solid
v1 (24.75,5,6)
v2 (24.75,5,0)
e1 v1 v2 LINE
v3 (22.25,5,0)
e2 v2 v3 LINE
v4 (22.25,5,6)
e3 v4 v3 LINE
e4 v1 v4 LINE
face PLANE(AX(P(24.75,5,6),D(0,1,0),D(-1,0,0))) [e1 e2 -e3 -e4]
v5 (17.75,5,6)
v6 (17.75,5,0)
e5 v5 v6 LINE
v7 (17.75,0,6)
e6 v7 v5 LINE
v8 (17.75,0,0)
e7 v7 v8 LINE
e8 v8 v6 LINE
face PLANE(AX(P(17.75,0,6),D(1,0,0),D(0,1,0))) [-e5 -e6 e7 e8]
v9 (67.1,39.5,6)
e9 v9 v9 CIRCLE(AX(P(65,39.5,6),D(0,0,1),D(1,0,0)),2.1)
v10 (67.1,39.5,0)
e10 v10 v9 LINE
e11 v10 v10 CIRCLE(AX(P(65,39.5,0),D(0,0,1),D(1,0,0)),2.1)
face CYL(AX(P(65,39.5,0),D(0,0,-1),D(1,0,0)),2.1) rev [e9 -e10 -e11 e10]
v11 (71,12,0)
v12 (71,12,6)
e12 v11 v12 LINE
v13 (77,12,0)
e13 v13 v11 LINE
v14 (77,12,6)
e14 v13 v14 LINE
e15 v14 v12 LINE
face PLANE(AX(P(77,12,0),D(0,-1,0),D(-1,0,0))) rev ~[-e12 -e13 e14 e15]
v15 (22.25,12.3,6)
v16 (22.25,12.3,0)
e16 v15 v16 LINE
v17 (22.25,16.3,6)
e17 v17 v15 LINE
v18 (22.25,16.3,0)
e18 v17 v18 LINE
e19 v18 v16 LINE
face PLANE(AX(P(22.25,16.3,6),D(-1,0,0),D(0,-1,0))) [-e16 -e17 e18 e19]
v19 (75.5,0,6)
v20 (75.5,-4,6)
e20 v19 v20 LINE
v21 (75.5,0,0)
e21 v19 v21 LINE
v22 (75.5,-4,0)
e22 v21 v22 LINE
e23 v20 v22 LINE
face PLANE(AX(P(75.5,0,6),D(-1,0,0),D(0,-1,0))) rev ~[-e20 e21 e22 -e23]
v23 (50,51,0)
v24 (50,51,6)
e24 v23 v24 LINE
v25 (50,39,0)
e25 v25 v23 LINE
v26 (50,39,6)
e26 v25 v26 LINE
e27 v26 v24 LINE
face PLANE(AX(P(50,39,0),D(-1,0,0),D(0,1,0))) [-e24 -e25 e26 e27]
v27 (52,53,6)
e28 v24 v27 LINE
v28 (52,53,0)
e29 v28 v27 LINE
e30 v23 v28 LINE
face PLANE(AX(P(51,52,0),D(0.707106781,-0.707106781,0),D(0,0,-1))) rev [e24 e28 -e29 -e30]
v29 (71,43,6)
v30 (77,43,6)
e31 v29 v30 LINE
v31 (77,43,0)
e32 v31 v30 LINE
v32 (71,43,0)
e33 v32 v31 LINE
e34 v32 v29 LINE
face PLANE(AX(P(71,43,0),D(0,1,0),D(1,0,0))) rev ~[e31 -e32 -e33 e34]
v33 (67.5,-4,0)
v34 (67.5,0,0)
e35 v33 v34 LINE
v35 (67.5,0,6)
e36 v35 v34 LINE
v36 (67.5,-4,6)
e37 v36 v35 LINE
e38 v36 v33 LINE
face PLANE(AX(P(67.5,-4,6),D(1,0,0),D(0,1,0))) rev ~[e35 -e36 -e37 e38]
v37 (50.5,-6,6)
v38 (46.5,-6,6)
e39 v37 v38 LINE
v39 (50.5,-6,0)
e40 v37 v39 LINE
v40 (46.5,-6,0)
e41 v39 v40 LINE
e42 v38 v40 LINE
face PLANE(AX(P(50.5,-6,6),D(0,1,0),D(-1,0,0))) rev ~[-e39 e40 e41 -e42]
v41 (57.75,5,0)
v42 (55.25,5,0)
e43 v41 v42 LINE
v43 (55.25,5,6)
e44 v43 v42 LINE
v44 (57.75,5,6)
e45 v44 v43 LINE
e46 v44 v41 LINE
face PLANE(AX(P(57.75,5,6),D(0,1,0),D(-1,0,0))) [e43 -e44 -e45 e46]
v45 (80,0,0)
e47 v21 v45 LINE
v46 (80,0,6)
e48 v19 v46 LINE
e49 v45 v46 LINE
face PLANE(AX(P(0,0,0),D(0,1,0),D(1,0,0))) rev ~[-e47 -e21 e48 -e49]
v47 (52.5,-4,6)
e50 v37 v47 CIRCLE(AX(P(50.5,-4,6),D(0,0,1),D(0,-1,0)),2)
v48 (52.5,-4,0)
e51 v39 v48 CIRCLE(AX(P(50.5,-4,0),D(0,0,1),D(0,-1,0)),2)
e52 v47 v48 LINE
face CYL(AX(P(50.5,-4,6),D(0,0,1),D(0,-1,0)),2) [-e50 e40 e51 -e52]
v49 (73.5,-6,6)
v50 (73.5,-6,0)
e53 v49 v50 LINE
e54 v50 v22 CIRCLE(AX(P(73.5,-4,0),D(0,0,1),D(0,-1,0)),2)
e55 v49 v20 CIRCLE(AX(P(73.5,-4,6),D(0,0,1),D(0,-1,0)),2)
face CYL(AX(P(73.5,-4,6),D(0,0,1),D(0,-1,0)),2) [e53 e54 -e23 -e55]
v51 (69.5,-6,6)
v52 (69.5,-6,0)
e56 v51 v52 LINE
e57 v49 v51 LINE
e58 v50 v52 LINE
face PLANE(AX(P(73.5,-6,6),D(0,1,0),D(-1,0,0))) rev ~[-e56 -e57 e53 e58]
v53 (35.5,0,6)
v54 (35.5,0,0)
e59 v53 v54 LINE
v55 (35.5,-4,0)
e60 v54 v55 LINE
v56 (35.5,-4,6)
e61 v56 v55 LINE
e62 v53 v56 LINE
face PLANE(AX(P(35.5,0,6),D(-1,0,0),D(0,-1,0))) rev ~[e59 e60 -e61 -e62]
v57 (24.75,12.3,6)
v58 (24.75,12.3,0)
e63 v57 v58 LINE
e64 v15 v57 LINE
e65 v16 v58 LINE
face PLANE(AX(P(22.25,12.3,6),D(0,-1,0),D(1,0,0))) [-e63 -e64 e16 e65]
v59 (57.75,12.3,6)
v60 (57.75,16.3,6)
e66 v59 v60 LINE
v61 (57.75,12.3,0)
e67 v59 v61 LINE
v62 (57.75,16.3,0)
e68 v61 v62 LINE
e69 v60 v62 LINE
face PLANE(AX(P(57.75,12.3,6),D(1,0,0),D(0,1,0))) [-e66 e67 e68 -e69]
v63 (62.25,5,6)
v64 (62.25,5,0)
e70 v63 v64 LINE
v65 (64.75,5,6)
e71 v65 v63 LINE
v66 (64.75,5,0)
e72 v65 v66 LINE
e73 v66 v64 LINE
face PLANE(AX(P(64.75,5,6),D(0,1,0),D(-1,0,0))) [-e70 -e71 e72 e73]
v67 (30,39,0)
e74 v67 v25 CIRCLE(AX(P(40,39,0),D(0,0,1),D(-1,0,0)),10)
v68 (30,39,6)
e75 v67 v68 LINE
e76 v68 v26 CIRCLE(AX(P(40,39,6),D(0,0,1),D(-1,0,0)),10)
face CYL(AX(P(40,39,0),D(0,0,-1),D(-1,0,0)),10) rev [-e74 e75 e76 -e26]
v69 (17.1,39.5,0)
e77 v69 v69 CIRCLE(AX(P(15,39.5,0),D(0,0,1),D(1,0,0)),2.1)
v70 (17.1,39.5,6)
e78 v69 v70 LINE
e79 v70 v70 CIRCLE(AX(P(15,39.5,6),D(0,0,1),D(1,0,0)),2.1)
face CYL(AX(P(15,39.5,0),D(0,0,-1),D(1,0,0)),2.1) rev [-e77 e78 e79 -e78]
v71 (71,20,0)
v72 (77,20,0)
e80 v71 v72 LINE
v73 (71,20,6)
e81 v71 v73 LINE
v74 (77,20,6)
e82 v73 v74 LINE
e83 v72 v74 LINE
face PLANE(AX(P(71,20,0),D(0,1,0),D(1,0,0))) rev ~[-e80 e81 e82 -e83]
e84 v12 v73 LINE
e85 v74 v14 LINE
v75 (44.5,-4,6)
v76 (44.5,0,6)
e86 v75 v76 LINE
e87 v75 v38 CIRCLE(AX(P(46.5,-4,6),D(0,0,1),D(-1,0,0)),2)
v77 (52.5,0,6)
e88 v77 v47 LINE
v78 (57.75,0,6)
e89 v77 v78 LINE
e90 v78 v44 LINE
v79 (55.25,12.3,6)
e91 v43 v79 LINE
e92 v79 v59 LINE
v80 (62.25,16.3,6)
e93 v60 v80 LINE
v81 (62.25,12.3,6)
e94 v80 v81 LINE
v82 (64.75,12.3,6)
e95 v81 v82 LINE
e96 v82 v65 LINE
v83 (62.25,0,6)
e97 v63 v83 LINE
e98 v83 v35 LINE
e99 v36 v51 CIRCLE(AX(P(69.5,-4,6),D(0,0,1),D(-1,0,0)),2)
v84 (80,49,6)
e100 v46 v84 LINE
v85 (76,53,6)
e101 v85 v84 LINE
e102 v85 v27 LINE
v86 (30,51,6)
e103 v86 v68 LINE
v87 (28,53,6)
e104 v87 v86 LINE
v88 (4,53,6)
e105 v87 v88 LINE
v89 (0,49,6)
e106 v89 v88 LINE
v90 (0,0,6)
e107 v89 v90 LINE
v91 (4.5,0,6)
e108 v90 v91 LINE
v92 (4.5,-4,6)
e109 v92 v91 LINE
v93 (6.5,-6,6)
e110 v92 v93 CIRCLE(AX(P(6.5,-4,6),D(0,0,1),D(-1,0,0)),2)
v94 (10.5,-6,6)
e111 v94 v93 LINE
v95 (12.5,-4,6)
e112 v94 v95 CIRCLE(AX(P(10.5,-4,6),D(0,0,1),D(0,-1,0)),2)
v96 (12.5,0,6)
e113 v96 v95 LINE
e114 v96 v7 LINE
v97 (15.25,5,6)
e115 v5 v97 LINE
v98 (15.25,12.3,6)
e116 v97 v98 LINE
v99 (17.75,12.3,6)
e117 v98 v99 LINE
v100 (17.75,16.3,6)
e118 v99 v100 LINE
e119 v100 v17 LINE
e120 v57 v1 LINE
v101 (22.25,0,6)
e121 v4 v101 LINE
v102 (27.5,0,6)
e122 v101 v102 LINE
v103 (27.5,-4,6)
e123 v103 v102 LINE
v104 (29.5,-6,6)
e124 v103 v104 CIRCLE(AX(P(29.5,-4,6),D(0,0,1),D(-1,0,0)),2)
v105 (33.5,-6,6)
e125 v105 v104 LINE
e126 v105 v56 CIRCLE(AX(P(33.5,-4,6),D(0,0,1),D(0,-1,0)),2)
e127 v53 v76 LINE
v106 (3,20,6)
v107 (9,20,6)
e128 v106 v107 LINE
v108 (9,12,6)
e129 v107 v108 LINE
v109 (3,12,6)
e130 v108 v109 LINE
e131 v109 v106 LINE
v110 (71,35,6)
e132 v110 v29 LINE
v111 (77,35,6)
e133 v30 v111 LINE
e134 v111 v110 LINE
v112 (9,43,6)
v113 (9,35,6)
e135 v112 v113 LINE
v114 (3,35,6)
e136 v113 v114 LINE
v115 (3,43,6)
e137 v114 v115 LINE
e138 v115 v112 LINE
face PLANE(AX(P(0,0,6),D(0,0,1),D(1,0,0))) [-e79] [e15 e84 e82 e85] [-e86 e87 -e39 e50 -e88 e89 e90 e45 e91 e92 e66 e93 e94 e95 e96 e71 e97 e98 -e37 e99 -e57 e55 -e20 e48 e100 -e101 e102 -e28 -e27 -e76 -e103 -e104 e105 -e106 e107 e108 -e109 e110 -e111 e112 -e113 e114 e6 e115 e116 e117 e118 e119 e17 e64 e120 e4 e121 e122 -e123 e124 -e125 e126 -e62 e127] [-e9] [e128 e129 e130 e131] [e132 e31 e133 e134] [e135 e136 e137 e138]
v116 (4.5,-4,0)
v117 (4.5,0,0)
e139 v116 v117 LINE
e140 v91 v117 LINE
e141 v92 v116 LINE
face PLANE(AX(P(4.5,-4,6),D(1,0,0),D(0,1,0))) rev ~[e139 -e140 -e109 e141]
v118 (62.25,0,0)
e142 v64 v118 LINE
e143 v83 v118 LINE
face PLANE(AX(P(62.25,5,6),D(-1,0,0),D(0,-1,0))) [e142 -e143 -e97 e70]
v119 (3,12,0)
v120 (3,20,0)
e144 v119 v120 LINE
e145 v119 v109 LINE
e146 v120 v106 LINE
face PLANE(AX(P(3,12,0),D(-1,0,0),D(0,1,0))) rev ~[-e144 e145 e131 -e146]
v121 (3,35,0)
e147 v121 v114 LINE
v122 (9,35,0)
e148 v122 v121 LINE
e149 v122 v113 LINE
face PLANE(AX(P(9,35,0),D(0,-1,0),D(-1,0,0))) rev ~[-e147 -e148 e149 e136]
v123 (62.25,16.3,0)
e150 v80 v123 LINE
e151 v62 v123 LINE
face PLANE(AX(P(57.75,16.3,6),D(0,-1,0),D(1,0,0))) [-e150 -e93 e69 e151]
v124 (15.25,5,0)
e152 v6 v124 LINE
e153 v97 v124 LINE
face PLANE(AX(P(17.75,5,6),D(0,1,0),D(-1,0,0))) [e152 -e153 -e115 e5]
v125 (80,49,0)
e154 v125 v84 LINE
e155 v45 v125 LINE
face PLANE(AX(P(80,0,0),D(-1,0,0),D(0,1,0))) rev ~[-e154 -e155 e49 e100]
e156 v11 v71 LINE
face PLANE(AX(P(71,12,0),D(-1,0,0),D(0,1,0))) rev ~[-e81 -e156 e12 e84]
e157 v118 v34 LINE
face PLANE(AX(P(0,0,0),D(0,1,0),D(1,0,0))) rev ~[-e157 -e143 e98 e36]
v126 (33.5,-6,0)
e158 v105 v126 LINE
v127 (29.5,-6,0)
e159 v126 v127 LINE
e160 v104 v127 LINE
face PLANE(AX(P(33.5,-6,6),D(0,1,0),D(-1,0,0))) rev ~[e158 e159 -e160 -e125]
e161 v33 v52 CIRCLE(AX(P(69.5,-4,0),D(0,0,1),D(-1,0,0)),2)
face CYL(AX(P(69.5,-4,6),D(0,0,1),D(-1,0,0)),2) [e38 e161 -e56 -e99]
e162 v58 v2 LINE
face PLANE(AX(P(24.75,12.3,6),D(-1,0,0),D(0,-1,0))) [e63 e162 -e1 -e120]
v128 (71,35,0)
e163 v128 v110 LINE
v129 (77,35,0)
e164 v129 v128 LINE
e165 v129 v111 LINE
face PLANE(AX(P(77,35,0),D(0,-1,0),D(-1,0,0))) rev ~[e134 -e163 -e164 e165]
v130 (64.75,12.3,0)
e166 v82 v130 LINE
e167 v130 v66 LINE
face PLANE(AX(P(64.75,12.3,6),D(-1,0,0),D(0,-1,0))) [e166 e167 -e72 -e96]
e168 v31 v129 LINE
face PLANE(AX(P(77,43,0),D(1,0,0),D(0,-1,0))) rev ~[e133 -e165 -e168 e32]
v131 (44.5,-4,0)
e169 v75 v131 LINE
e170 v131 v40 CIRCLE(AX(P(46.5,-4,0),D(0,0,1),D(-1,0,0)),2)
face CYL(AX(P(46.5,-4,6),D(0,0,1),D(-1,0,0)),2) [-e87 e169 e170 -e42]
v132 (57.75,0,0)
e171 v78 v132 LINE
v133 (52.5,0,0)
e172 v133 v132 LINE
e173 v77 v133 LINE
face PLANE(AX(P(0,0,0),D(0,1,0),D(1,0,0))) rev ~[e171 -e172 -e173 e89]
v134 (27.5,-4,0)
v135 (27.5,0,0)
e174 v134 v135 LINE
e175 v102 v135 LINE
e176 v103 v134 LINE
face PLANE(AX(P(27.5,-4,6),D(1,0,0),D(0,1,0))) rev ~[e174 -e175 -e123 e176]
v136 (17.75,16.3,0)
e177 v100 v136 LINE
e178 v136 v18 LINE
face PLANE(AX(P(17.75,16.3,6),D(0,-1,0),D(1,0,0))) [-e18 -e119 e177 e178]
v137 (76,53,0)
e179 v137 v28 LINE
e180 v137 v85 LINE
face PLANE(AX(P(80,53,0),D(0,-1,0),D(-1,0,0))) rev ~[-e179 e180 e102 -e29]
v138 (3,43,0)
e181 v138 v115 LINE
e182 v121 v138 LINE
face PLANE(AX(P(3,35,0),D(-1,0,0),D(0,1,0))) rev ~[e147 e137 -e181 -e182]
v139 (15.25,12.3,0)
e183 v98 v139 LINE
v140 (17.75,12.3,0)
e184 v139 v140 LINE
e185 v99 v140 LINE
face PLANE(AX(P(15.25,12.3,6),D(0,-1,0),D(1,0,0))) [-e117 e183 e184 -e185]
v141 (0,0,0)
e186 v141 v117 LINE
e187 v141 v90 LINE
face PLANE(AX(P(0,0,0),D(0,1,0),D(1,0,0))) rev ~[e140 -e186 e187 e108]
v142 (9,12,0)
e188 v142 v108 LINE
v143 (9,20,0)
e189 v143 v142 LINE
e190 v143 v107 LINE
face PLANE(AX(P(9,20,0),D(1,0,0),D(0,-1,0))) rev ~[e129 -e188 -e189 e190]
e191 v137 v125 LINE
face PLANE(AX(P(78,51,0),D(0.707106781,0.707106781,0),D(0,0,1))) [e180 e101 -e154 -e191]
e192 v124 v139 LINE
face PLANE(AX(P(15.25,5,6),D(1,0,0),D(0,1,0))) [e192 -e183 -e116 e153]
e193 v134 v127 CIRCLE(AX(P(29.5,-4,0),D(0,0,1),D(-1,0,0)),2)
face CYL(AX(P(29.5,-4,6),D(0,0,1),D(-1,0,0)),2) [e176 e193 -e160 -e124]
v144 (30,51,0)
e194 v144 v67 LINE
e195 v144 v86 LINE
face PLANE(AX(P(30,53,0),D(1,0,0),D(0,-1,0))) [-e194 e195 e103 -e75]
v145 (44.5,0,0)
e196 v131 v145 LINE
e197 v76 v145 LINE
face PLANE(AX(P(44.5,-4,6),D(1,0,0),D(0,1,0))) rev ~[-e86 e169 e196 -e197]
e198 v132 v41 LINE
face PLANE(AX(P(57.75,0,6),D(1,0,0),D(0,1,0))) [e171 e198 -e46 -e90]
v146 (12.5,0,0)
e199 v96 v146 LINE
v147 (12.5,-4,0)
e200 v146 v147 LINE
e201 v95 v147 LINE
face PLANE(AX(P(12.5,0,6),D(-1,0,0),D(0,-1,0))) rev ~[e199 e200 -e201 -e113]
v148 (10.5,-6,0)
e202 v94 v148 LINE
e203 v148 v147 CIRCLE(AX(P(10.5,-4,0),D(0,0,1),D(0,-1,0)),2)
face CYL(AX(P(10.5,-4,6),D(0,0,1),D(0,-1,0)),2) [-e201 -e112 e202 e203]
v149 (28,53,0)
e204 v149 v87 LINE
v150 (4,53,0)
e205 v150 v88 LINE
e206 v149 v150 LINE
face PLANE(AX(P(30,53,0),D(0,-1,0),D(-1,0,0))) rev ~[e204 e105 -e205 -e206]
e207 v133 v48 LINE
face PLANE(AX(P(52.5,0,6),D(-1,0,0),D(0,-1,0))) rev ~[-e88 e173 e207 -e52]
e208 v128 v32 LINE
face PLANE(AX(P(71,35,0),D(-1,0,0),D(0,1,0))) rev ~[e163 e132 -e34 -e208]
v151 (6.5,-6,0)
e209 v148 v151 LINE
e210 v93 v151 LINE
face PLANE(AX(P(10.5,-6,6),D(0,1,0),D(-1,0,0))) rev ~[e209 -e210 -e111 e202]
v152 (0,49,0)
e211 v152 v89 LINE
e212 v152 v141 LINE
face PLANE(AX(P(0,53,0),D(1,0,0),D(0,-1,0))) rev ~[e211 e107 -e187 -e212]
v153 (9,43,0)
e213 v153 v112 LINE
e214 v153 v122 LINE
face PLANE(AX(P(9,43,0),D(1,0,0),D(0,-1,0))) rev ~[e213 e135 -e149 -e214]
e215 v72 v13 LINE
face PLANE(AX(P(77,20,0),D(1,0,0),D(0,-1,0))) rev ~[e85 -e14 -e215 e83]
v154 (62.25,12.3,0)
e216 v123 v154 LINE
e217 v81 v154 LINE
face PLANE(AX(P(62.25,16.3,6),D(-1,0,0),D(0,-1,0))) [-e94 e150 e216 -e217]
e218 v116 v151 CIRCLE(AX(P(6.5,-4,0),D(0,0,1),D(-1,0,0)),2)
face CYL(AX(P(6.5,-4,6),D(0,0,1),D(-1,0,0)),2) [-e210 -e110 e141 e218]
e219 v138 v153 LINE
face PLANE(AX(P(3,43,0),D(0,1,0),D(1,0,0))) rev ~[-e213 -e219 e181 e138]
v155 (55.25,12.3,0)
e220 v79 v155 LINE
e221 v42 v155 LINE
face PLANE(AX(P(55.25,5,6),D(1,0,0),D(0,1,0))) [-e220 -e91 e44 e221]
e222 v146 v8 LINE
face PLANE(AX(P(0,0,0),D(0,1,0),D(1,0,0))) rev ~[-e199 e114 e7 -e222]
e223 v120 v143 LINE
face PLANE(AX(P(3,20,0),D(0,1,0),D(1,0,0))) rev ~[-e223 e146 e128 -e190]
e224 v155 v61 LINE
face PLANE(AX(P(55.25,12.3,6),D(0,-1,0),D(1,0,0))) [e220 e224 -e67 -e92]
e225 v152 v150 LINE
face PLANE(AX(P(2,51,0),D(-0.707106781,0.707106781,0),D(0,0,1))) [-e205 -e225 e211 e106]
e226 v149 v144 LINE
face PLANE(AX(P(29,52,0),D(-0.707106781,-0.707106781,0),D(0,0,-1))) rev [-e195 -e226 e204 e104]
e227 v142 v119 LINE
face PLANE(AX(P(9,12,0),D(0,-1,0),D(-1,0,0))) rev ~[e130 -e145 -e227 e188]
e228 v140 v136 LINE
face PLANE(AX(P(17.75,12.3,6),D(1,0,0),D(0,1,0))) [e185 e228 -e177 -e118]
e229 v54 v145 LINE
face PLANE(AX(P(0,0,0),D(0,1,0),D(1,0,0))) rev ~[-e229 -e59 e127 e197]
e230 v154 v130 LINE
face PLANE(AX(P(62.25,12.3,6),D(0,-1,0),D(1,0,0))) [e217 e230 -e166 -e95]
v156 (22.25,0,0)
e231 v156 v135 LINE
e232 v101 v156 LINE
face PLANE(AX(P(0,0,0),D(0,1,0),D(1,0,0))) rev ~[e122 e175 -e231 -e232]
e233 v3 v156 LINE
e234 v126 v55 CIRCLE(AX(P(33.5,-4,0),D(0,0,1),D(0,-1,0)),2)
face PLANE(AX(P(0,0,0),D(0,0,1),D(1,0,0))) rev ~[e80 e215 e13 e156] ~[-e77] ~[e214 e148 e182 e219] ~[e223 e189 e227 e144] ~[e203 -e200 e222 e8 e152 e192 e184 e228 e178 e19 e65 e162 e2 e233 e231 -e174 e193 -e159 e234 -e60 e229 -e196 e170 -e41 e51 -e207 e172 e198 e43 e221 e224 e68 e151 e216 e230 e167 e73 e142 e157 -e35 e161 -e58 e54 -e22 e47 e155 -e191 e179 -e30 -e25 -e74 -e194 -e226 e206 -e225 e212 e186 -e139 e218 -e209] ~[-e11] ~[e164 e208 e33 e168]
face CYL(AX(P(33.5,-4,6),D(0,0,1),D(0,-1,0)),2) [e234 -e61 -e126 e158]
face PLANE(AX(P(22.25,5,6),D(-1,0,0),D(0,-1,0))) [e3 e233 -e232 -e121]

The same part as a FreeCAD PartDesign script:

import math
import FreeCAD as App
import Part
import Sketcher

V = App.Vector


def edges_at(feature, points):
    """Names of the edges that pass closest to the given points."""
    edges = feature.Shape.Edges
    near = lambda p: min(range(len(edges)), key=lambda i: edges[i].distToShape(Part.Vertex(*p))[0])
    return sorted({f"Edge{near(p) + 1}" for p in points})

doc = App.newDocument("Part")
body = doc.addObject("PartDesign::Body", "Body")

# Sketch on XY plane
sketch1 = body.newObject("Sketcher::SketchObject", "Sketch")
sketch1.AttachmentSupport = (doc.getObject("XY_Plane"), [""])
sketch1.MapMode = "FlatFace"
sketch1.addGeometry(Part.LineSegment(V(0, 53, 0), V(0, 0, 0)), False)
sketch1.addGeometry(Part.LineSegment(V(0, 0, 0), V(80, 0, 0)), False)
sketch1.addGeometry(Part.LineSegment(V(80, 0, 0), V(80, 53, 0)), False)
sketch1.addGeometry(Part.LineSegment(V(80, 53, 0), V(50, 53, 0)), False)
sketch1.addGeometry(Part.LineSegment(V(50, 53, 0), V(50, 39, 0)), False)
sketch1.addGeometry(Part.ArcOfCircle(Part.Circle(V(40, 39, 0), V(0, 0, 1), 10), math.radians(180), math.radians(360)), False)
sketch1.addGeometry(Part.LineSegment(V(30, 39, 0), V(30, 53, 0)), False)
sketch1.addGeometry(Part.LineSegment(V(30, 53, 0), V(0, 53, 0)), False)
sketch1.addGeometry(Part.LineSegment(V(3, 12, 0), V(3, 20, 0)), False)
sketch1.addGeometry(Part.LineSegment(V(3, 20, 0), V(9, 20, 0)), False)
sketch1.addGeometry(Part.LineSegment(V(9, 20, 0), V(9, 12, 0)), False)
sketch1.addGeometry(Part.LineSegment(V(9, 12, 0), V(3, 12, 0)), False)
sketch1.addGeometry(Part.LineSegment(V(71, 12, 0), V(71, 20, 0)), False)
sketch1.addGeometry(Part.LineSegment(V(71, 20, 0), V(77, 20, 0)), False)
sketch1.addGeometry(Part.LineSegment(V(77, 20, 0), V(77, 12, 0)), False)
sketch1.addGeometry(Part.LineSegment(V(77, 12, 0), V(71, 12, 0)), False)
sketch1.addGeometry(Part.LineSegment(V(3, 35, 0), V(3, 43, 0)), False)
sketch1.addGeometry(Part.LineSegment(V(3, 43, 0), V(9, 43, 0)), False)
sketch1.addGeometry(Part.LineSegment(V(9, 43, 0), V(9, 35, 0)), False)
sketch1.addGeometry(Part.LineSegment(V(9, 35, 0), V(3, 35, 0)), False)
sketch1.addGeometry(Part.Circle(V(15, 39.5, 0), V(0, 0, 1), 2.1), False)
sketch1.addGeometry(Part.Circle(V(65, 39.5, 0), V(0, 0, 1), 2.1), False)
sketch1.addGeometry(Part.LineSegment(V(71, 35, 0), V(71, 43, 0)), False)
sketch1.addGeometry(Part.LineSegment(V(71, 43, 0), V(77, 43, 0)), False)
sketch1.addGeometry(Part.LineSegment(V(77, 43, 0), V(77, 35, 0)), False)
sketch1.addGeometry(Part.LineSegment(V(77, 35, 0), V(71, 35, 0)), False)
sketch1.addConstraint(Sketcher.Constraint("Coincident", 0, 2, 1, 1))
sketch1.addConstraint(Sketcher.Constraint("Coincident", 1, 2, 2, 1))
sketch1.addConstraint(Sketcher.Constraint("Coincident", 2, 2, 3, 1))
sketch1.addConstraint(Sketcher.Constraint("Coincident", 3, 2, 4, 1))
sketch1.addConstraint(Sketcher.Constraint("Tangent", 4, 2, 5, 2))
sketch1.addConstraint(Sketcher.Constraint("Tangent", 5, 1, 6, 1))
sketch1.addConstraint(Sketcher.Constraint("Coincident", 6, 2, 7, 1))
sketch1.addConstraint(Sketcher.Constraint("Coincident", 7, 2, 0, 1))
sketch1.addConstraint(Sketcher.Constraint("Coincident", 8, 2, 9, 1))
sketch1.addConstraint(Sketcher.Constraint("Coincident", 9, 2, 10, 1))
sketch1.addConstraint(Sketcher.Constraint("Coincident", 10, 2, 11, 1))
sketch1.addConstraint(Sketcher.Constraint("Coincident", 11, 2, 8, 1))
sketch1.addConstraint(Sketcher.Constraint("Coincident", 12, 2, 13, 1))
sketch1.addConstraint(Sketcher.Constraint("Coincident", 13, 2, 14, 1))
sketch1.addConstraint(Sketcher.Constraint("Coincident", 14, 2, 15, 1))
sketch1.addConstraint(Sketcher.Constraint("Coincident", 15, 2, 12, 1))
sketch1.addConstraint(Sketcher.Constraint("Coincident", 16, 2, 17, 1))
sketch1.addConstraint(Sketcher.Constraint("Coincident", 17, 2, 18, 1))
sketch1.addConstraint(Sketcher.Constraint("Coincident", 18, 2, 19, 1))
sketch1.addConstraint(Sketcher.Constraint("Coincident", 19, 2, 16, 1))
sketch1.addConstraint(Sketcher.Constraint("Coincident", 22, 2, 23, 1))
sketch1.addConstraint(Sketcher.Constraint("Coincident", 23, 2, 24, 1))
sketch1.addConstraint(Sketcher.Constraint("Coincident", 24, 2, 25, 1))
sketch1.addConstraint(Sketcher.Constraint("Coincident", 25, 2, 22, 1))
sketch1.addConstraint(Sketcher.Constraint("Vertical", 0))
sketch1.addConstraint(Sketcher.Constraint("Horizontal", 1))
sketch1.addConstraint(Sketcher.Constraint("Vertical", 2))
sketch1.addConstraint(Sketcher.Constraint("Horizontal", 3))
sketch1.addConstraint(Sketcher.Constraint("Vertical", 4))
sketch1.addConstraint(Sketcher.Constraint("Vertical", 6))
sketch1.addConstraint(Sketcher.Constraint("Horizontal", 7))
sketch1.addConstraint(Sketcher.Constraint("Vertical", 8))
sketch1.addConstraint(Sketcher.Constraint("Horizontal", 9))
sketch1.addConstraint(Sketcher.Constraint("Vertical", 10))
sketch1.addConstraint(Sketcher.Constraint("Horizontal", 11))
sketch1.addConstraint(Sketcher.Constraint("Vertical", 12))
sketch1.addConstraint(Sketcher.Constraint("Horizontal", 13))
sketch1.addConstraint(Sketcher.Constraint("Vertical", 14))
sketch1.addConstraint(Sketcher.Constraint("Horizontal", 15))
sketch1.addConstraint(Sketcher.Constraint("Vertical", 16))
sketch1.addConstraint(Sketcher.Constraint("Horizontal", 17))
sketch1.addConstraint(Sketcher.Constraint("Vertical", 18))
sketch1.addConstraint(Sketcher.Constraint("Horizontal", 19))
sketch1.addConstraint(Sketcher.Constraint("Vertical", 22))
sketch1.addConstraint(Sketcher.Constraint("Horizontal", 23))
sketch1.addConstraint(Sketcher.Constraint("Vertical", 24))
sketch1.addConstraint(Sketcher.Constraint("Horizontal", 25))
sketch1.addConstraint(Sketcher.Constraint("Coincident", 0, 2, -1, 1))
sketch1.addConstraint(Sketcher.Constraint("Equal", 20, 21))
sketch1.addConstraint(Sketcher.Constraint("Horizontal", 20, 3, 21, 3))
sketch1.addConstraint(Sketcher.Constraint("Horizontal", 3, 2, 6, 2))
sketch1.addConstraint(Sketcher.Constraint("Horizontal", 9, 2, 12, 2))
sketch1.addConstraint(Sketcher.Constraint("Horizontal", 11, 2, 14, 2))
sketch1.addConstraint(Sketcher.Constraint("Horizontal", 17, 2, 22, 2))
sketch1.addConstraint(Sketcher.Constraint("Horizontal", 19, 2, 24, 2))
sketch1.addConstraint(Sketcher.Constraint("Vertical", 11, 2, 16, 2))
sketch1.addConstraint(Sketcher.Constraint("Vertical", 10, 2, 17, 2))
sketch1.addConstraint(Sketcher.Constraint("Vertical", 15, 2, 22, 2))
sketch1.addConstraint(Sketcher.Constraint("Vertical", 14, 2, 23, 2))
sketch1.addConstraint(Sketcher.Constraint("Equal", 3, 7))
sketch1.addConstraint(Sketcher.Constraint("Equal", 11, 13))
sketch1.addConstraint(Sketcher.Constraint("Equal", 14, 16))
sketch1.addConstraint(Sketcher.Constraint("Radius", 5, 10.0))
sketch1.addConstraint(Sketcher.Constraint("Diameter", 20, 4.2))
sketch1.addConstraint(Sketcher.Constraint("DistanceX", 1, 1, 1, 2, 80.0))
sketch1.addConstraint(Sketcher.Constraint("DistanceX", 9, 1, 9, 2, 6.0))
sketch1.addConstraint(Sketcher.Constraint("DistanceY", 0, 2, 0, 1, 53.0))
sketch1.addConstraint(Sketcher.Constraint("DistanceY", 4, 2, 4, 1, 14.0))
sketch1.addConstraint(Sketcher.Constraint("DistanceY", 8, 1, 8, 2, 8.0))
sketch1.addConstraint(Sketcher.Constraint("DistanceX", -1, 1, 20, 3, 15.0))
sketch1.addConstraint(Sketcher.Constraint("DistanceX", -1, 1, 8, 2, 3.0))
sketch1.addConstraint(Sketcher.Constraint("DistanceY", -1, 1, 8, 2, 20.0))
sketch1.addConstraint(Sketcher.Constraint("DistanceX", 20, 3, 21, 3, 50.0))
sketch1.addConstraint(Sketcher.Constraint("DistanceX", 21, 3, 12, 2, 6.0))
sketch1.addConstraint(Sketcher.Constraint("DistanceY", 9, 2, 18, 2, 15.0))
sketch1.addConstraint(Sketcher.Constraint("DistanceY", 21, 3, 2, 2, 13.5))
pad1 = body.newObject("PartDesign::Pad", "Pad")
pad1.Profile = sketch1
pad1.Length = 6

# Sketch on XY plane
sketch2 = body.newObject("Sketcher::SketchObject", "Sketch001")
sketch2.AttachmentSupport = (doc.getObject("XY_Plane"), [""])
sketch2.MapMode = "FlatFace"
sketch2.AttachmentOffset = App.Placement(V(0, 0, 6), App.Rotation())
sketch2.addGeometry(Part.LineSegment(V(17.75, 5, 0), V(17.75, 0, 0)), False)
sketch2.addGeometry(Part.LineSegment(V(17.75, 0, 0), V(22.25, 0, 0)), False)
sketch2.addGeometry(Part.LineSegment(V(22.25, 0, 0), V(22.25, 5, 0)), False)
sketch2.addGeometry(Part.LineSegment(V(22.25, 5, 0), V(24.75, 5, 0)), False)
sketch2.addGeometry(Part.LineSegment(V(24.75, 5, 0), V(24.75, 12.3, 0)), False)
sketch2.addGeometry(Part.LineSegment(V(24.75, 12.3, 0), V(22.25, 12.3, 0)), False)
sketch2.addGeometry(Part.LineSegment(V(22.25, 12.3, 0), V(22.25, 16.3, 0)), False)
sketch2.addGeometry(Part.LineSegment(V(22.25, 16.3, 0), V(17.75, 16.3, 0)), False)
sketch2.addGeometry(Part.LineSegment(V(17.75, 16.3, 0), V(17.75, 12.3, 0)), False)
sketch2.addGeometry(Part.LineSegment(V(17.75, 12.3, 0), V(15.25, 12.3, 0)), False)
sketch2.addGeometry(Part.LineSegment(V(15.25, 12.3, 0), V(15.25, 5, 0)), False)
sketch2.addGeometry(Part.LineSegment(V(15.25, 5, 0), V(17.75, 5, 0)), False)
sketch2.addGeometry(Part.LineSegment(V(57.75, 5, 0), V(57.75, 0, 0)), False)
sketch2.addGeometry(Part.LineSegment(V(57.75, 0, 0), V(62.25, 0, 0)), False)
sketch2.addGeometry(Part.LineSegment(V(62.25, 0, 0), V(62.25, 5, 0)), False)
sketch2.addGeometry(Part.LineSegment(V(62.25, 5, 0), V(64.75, 5, 0)), False)
sketch2.addGeometry(Part.LineSegment(V(64.75, 5, 0), V(64.75, 12.3, 0)), False)
sketch2.addGeometry(Part.LineSegment(V(64.75, 12.3, 0), V(62.25, 12.3, 0)), False)
sketch2.addGeometry(Part.LineSegment(V(62.25, 12.3, 0), V(62.25, 16.3, 0)), False)
sketch2.addGeometry(Part.LineSegment(V(62.25, 16.3, 0), V(57.75, 16.3, 0)), False)
sketch2.addGeometry(Part.LineSegment(V(57.75, 16.3, 0), V(57.75, 12.3, 0)), False)
sketch2.addGeometry(Part.LineSegment(V(57.75, 12.3, 0), V(55.25, 12.3, 0)), False)
sketch2.addGeometry(Part.LineSegment(V(55.25, 12.3, 0), V(55.25, 5, 0)), False)
sketch2.addGeometry(Part.LineSegment(V(55.25, 5, 0), V(57.75, 5, 0)), False)
sketch2.addConstraint(Sketcher.Constraint("Coincident", 0, 2, 1, 1))
sketch2.addConstraint(Sketcher.Constraint("Coincident", 1, 2, 2, 1))
sketch2.addConstraint(Sketcher.Constraint("Coincident", 2, 2, 3, 1))
sketch2.addConstraint(Sketcher.Constraint("Coincident", 3, 2, 4, 1))
sketch2.addConstraint(Sketcher.Constraint("Coincident", 4, 2, 5, 1))
sketch2.addConstraint(Sketcher.Constraint("Coincident", 5, 2, 6, 1))
sketch2.addConstraint(Sketcher.Constraint("Coincident", 6, 2, 7, 1))
sketch2.addConstraint(Sketcher.Constraint("Coincident", 7, 2, 8, 1))
sketch2.addConstraint(Sketcher.Constraint("Coincident", 8, 2, 9, 1))
sketch2.addConstraint(Sketcher.Constraint("Coincident", 9, 2, 10, 1))
sketch2.addConstraint(Sketcher.Constraint("Coincident", 10, 2, 11, 1))
sketch2.addConstraint(Sketcher.Constraint("Coincident", 11, 2, 0, 1))
sketch2.addConstraint(Sketcher.Constraint("Coincident", 12, 2, 13, 1))
sketch2.addConstraint(Sketcher.Constraint("Coincident", 13, 2, 14, 1))
sketch2.addConstraint(Sketcher.Constraint("Coincident", 14, 2, 15, 1))
sketch2.addConstraint(Sketcher.Constraint("Coincident", 15, 2, 16, 1))
sketch2.addConstraint(Sketcher.Constraint("Coincident", 16, 2, 17, 1))
sketch2.addConstraint(Sketcher.Constraint("Coincident", 17, 2, 18, 1))
sketch2.addConstraint(Sketcher.Constraint("Coincident", 18, 2, 19, 1))
sketch2.addConstraint(Sketcher.Constraint("Coincident", 19, 2, 20, 1))
sketch2.addConstraint(Sketcher.Constraint("Coincident", 20, 2, 21, 1))
sketch2.addConstraint(Sketcher.Constraint("Coincident", 21, 2, 22, 1))
sketch2.addConstraint(Sketcher.Constraint("Coincident", 22, 2, 23, 1))
sketch2.addConstraint(Sketcher.Constraint("Coincident", 23, 2, 12, 1))
sketch2.addConstraint(Sketcher.Constraint("Vertical", 0))
sketch2.addConstraint(Sketcher.Constraint("Horizontal", 1))
sketch2.addConstraint(Sketcher.Constraint("Vertical", 2))
sketch2.addConstraint(Sketcher.Constraint("Horizontal", 3))
sketch2.addConstraint(Sketcher.Constraint("Vertical", 4))
sketch2.addConstraint(Sketcher.Constraint("Horizontal", 5))
sketch2.addConstraint(Sketcher.Constraint("Vertical", 6))
sketch2.addConstraint(Sketcher.Constraint("Horizontal", 7))
sketch2.addConstraint(Sketcher.Constraint("Vertical", 8))
sketch2.addConstraint(Sketcher.Constraint("Horizontal", 9))
sketch2.addConstraint(Sketcher.Constraint("Vertical", 10))
sketch2.addConstraint(Sketcher.Constraint("Horizontal", 11))
sketch2.addConstraint(Sketcher.Constraint("Vertical", 12))
sketch2.addConstraint(Sketcher.Constraint("Horizontal", 13))
sketch2.addConstraint(Sketcher.Constraint("Vertical", 14))
sketch2.addConstraint(Sketcher.Constraint("Horizontal", 15))
sketch2.addConstraint(Sketcher.Constraint("Vertical", 16))
sketch2.addConstraint(Sketcher.Constraint("Horizontal", 17))
sketch2.addConstraint(Sketcher.Constraint("Vertical", 18))
sketch2.addConstraint(Sketcher.Constraint("Horizontal", 19))
sketch2.addConstraint(Sketcher.Constraint("Vertical", 20))
sketch2.addConstraint(Sketcher.Constraint("Horizontal", 21))
sketch2.addConstraint(Sketcher.Constraint("Vertical", 22))
sketch2.addConstraint(Sketcher.Constraint("Horizontal", 23))
sketch2.addConstraint(Sketcher.Constraint("PointOnObject", 0, 2, -1))
sketch2.addConstraint(Sketcher.Constraint("PointOnObject", 12, 2, -1))
sketch2.addConstraint(Sketcher.Constraint("Horizontal", 5, 2, 8, 2))
sketch2.addConstraint(Sketcher.Constraint("Horizontal", 3, 2, 10, 2))
sketch2.addConstraint(Sketcher.Constraint("Horizontal", 11, 2, 14, 2))
sketch2.addConstraint(Sketcher.Constraint("Horizontal", 9, 2, 16, 2))
sketch2.addConstraint(Sketcher.Constraint("Horizontal", 7, 2, 18, 2))
sketch2.addConstraint(Sketcher.Constraint("Horizontal", 17, 2, 20, 2))
sketch2.addConstraint(Sketcher.Constraint("Horizontal", 15, 2, 22, 2))
sketch2.addConstraint(Sketcher.Constraint("Vertical", 2, 2, 5, 2))
sketch2.addConstraint(Sketcher.Constraint("Vertical", 0, 2, 7, 2))
sketch2.addConstraint(Sketcher.Constraint("Vertical", 14, 2, 17, 2))
sketch2.addConstraint(Sketcher.Constraint("Vertical", 12, 2, 19, 2))
sketch2.addConstraint(Sketcher.Constraint("Equal", 5, 9))
sketch2.addConstraint(Sketcher.Constraint("Equal", 7, 13))
sketch2.addConstraint(Sketcher.Constraint("Equal", 11, 15))
sketch2.addConstraint(Sketcher.Constraint("Equal", 17, 21))
sketch2.addConstraint(Sketcher.Constraint("DistanceY", 0, 2, 0, 1, 5.0))
sketch2.addConstraint(Sketcher.Constraint("DistanceY", 6, 1, 6, 2, 4.0))
sketch2.addConstraint(Sketcher.Constraint("DistanceX", 1, 1, 1, 2, 4.5))
sketch2.addConstraint(Sketcher.Constraint("DistanceX", 3, 1, 3, 2, 2.5))
sketch2.addConstraint(Sketcher.Constraint("DistanceY", 4, 1, 4, 2, 7.3))
sketch2.addConstraint(Sketcher.Constraint("DistanceX", 1, 2, 13, 2, 40.0))
sketch2.addConstraint(Sketcher.Constraint("DistanceX", -1, 1, 0, 2, 17.75))
pocket1 = body.newObject("PartDesign::Pocket", "Pocket")
pocket1.Profile = sketch2
pocket1.Type = "ThroughAll"

# Sketch on XY plane
sketch3 = body.newObject("Sketcher::SketchObject", "Sketch002")
sketch3.AttachmentSupport = (doc.getObject("XY_Plane"), [""])
sketch3.MapMode = "FlatFace"
sketch3.AttachmentOffset = App.Placement(V(0, 0, 6), App.Rotation())
sketch3.addGeometry(Part.LineSegment(V(52.5, 0, 0), V(44.5, 0, 0)), False)
sketch3.addGeometry(Part.LineSegment(V(44.5, 0, 0), V(44.5, -4, 0)), False)
sketch3.addGeometry(Part.ArcOfCircle(Part.Circle(V(46.5, -4, 0), V(0, 0, 1), 2), math.radians(180), math.radians(270)), False)
sketch3.addGeometry(Part.LineSegment(V(46.5, -6, 0), V(50.5, -6, 0)), False)
sketch3.addGeometry(Part.ArcOfCircle(Part.Circle(V(50.5, -4, 0), V(0, 0, 1), 2), math.radians(-90), math.radians(0)), False)
sketch3.addGeometry(Part.LineSegment(V(52.5, -4, 0), V(52.5, 0, 0)), False)
sketch3.addGeometry(Part.LineSegment(V(35.5, 0, 0), V(27.5, 0, 0)), False)
sketch3.addGeometry(Part.LineSegment(V(27.5, 0, 0), V(27.5, -4, 0)), False)
sketch3.addGeometry(Part.ArcOfCircle(Part.Circle(V(29.5, -4, 0), V(0, 0, 1), 2), math.radians(180), math.radians(270)), False)
sketch3.addGeometry(Part.LineSegment(V(29.5, -6, 0), V(33.5, -6, 0)), False)
sketch3.addGeometry(Part.ArcOfCircle(Part.Circle(V(33.5, -4, 0), V(0, 0, 1), 2), math.radians(-90), math.radians(0)), False)
sketch3.addGeometry(Part.LineSegment(V(35.5, -4, 0), V(35.5, 0, 0)), False)
sketch3.addGeometry(Part.LineSegment(V(75.5, 0, 0), V(67.5, 0, 0)), False)
sketch3.addGeometry(Part.LineSegment(V(67.5, 0, 0), V(67.5, -4, 0)), False)
sketch3.addGeometry(Part.ArcOfCircle(Part.Circle(V(69.5, -4, 0), V(0, 0, 1), 2), math.radians(180), math.radians(270)), False)
sketch3.addGeometry(Part.LineSegment(V(69.5, -6, 0), V(73.5, -6, 0)), False)
sketch3.addGeometry(Part.ArcOfCircle(Part.Circle(V(73.5, -4, 0), V(0, 0, 1), 2), math.radians(-90), math.radians(0)), False)
sketch3.addGeometry(Part.LineSegment(V(75.5, -4, 0), V(75.5, 0, 0)), False)
sketch3.addGeometry(Part.LineSegment(V(12.5, 0, 0), V(4.5, 0, 0)), False)
sketch3.addGeometry(Part.LineSegment(V(4.5, 0, 0), V(4.5, -4, 0)), False)
sketch3.addGeometry(Part.ArcOfCircle(Part.Circle(V(6.5, -4, 0), V(0, 0, 1), 2), math.radians(180), math.radians(270)), False)
sketch3.addGeometry(Part.LineSegment(V(6.5, -6, 0), V(10.5, -6, 0)), False)
sketch3.addGeometry(Part.ArcOfCircle(Part.Circle(V(10.5, -4, 0), V(0, 0, 1), 2), math.radians(-90), math.radians(0)), False)
sketch3.addGeometry(Part.LineSegment(V(12.5, -4, 0), V(12.5, 0, 0)), False)
sketch3.addConstraint(Sketcher.Constraint("Coincident", 0, 2, 1, 1))
sketch3.addConstraint(Sketcher.Constraint("Tangent", 1, 2, 2, 1))
sketch3.addConstraint(Sketcher.Constraint("Tangent", 2, 2, 3, 1))
sketch3.addConstraint(Sketcher.Constraint("Tangent", 3, 2, 4, 1))
sketch3.addConstraint(Sketcher.Constraint("Tangent", 4, 2, 5, 1))
sketch3.addConstraint(Sketcher.Constraint("Coincident", 5, 2, 0, 1))
sketch3.addConstraint(Sketcher.Constraint("Coincident", 6, 2, 7, 1))
sketch3.addConstraint(Sketcher.Constraint("Tangent", 7, 2, 8, 1))
sketch3.addConstraint(Sketcher.Constraint("Tangent", 8, 2, 9, 1))
sketch3.addConstraint(Sketcher.Constraint("Tangent", 9, 2, 10, 1))
sketch3.addConstraint(Sketcher.Constraint("Tangent", 10, 2, 11, 1))
sketch3.addConstraint(Sketcher.Constraint("Coincident", 11, 2, 6, 1))
sketch3.addConstraint(Sketcher.Constraint("Coincident", 12, 2, 13, 1))
sketch3.addConstraint(Sketcher.Constraint("Tangent", 13, 2, 14, 1))
sketch3.addConstraint(Sketcher.Constraint("Tangent", 14, 2, 15, 1))
sketch3.addConstraint(Sketcher.Constraint("Tangent", 15, 2, 16, 1))
sketch3.addConstraint(Sketcher.Constraint("Tangent", 16, 2, 17, 1))
sketch3.addConstraint(Sketcher.Constraint("Coincident", 17, 2, 12, 1))
sketch3.addConstraint(Sketcher.Constraint("Coincident", 18, 2, 19, 1))
sketch3.addConstraint(Sketcher.Constraint("Tangent", 19, 2, 20, 1))
sketch3.addConstraint(Sketcher.Constraint("Tangent", 20, 2, 21, 1))
sketch3.addConstraint(Sketcher.Constraint("Tangent", 21, 2, 22, 1))
sketch3.addConstraint(Sketcher.Constraint("Tangent", 22, 2, 23, 1))
sketch3.addConstraint(Sketcher.Constraint("Coincident", 23, 2, 18, 1))
sketch3.addConstraint(Sketcher.Constraint("Horizontal", 0))
sketch3.addConstraint(Sketcher.Constraint("Vertical", 1))
sketch3.addConstraint(Sketcher.Constraint("Horizontal", 3))
sketch3.addConstraint(Sketcher.Constraint("Vertical", 5))
sketch3.addConstraint(Sketcher.Constraint("Horizontal", 6))
sketch3.addConstraint(Sketcher.Constraint("Vertical", 7))
sketch3.addConstraint(Sketcher.Constraint("Horizontal", 9))
sketch3.addConstraint(Sketcher.Constraint("Vertical", 11))
sketch3.addConstraint(Sketcher.Constraint("Horizontal", 12))
sketch3.addConstraint(Sketcher.Constraint("Vertical", 13))
sketch3.addConstraint(Sketcher.Constraint("Horizontal", 15))
sketch3.addConstraint(Sketcher.Constraint("Vertical", 17))
sketch3.addConstraint(Sketcher.Constraint("Horizontal", 18))
sketch3.addConstraint(Sketcher.Constraint("Vertical", 19))
sketch3.addConstraint(Sketcher.Constraint("Horizontal", 21))
sketch3.addConstraint(Sketcher.Constraint("Vertical", 23))
sketch3.addConstraint(Sketcher.Constraint("Equal", 2, 4))
sketch3.addConstraint(Sketcher.Constraint("Equal", 4, 8))
sketch3.addConstraint(Sketcher.Constraint("Equal", 8, 10))
sketch3.addConstraint(Sketcher.Constraint("Equal", 10, 14))
sketch3.addConstraint(Sketcher.Constraint("Equal", 14, 16))
sketch3.addConstraint(Sketcher.Constraint("Equal", 16, 20))
sketch3.addConstraint(Sketcher.Constraint("Equal", 20, 22))
sketch3.addConstraint(Sketcher.Constraint("PointOnObject", 0, 2, -1))
sketch3.addConstraint(Sketcher.Constraint("PointOnObject", 6, 2, -1))
sketch3.addConstraint(Sketcher.Constraint("PointOnObject", 12, 2, -1))
sketch3.addConstraint(Sketcher.Constraint("PointOnObject", 18, 2, -1))
sketch3.addConstraint(Sketcher.Constraint("Horizontal", 4, 3, 8, 3))
sketch3.addConstraint(Sketcher.Constraint("Horizontal", 10, 3, 14, 3))
sketch3.addConstraint(Sketcher.Constraint("Horizontal", 16, 3, 20, 3))
sketch3.addConstraint(Sketcher.Constraint("Equal", 0, 6))
sketch3.addConstraint(Sketcher.Constraint("Equal", 6, 12))
sketch3.addConstraint(Sketcher.Constraint("Equal", 12, 18))
sketch3.addConstraint(Sketcher.Constraint("Equal", 21, 1))
sketch3.addConstraint(Sketcher.Constraint("Radius", 2, 2.0))
sketch3.addConstraint(Sketcher.Constraint("DistanceX", 0, 2, 0, 1, 8.0))
sketch3.addConstraint(Sketcher.Constraint("DistanceX", 8, 3, 0, 2, 15.0))
sketch3.addConstraint(Sketcher.Constraint("DistanceX", 5, 2, 12, 2, 15.0))
sketch3.addConstraint(Sketcher.Constraint("DistanceX", 20, 3, 8, 3, 23.0))
sketch3.addConstraint(Sketcher.Constraint("DistanceX", -1, 1, 2, 3, 46.5))
pad2 = body.newObject("PartDesign::Pad", "Pad001")
pad2.Profile = sketch3
pad2.Length = 6
pad2.Reversed = True
doc.recompute()

chamfer = body.newObject("PartDesign::Chamfer", "Chamfer")
chamfer.Base = (pad2, edges_at(pad2, [(0, 53, 3), (80, 53, 3)]))
chamfer.Size = 4
doc.recompute()

chamfer2 = body.newObject("PartDesign::Chamfer", "Chamfer001")
chamfer2.Base = (chamfer, edges_at(chamfer, [(30, 53, 3), (50, 53, 3)]))
chamfer2.Size = 2

doc.recompute()
